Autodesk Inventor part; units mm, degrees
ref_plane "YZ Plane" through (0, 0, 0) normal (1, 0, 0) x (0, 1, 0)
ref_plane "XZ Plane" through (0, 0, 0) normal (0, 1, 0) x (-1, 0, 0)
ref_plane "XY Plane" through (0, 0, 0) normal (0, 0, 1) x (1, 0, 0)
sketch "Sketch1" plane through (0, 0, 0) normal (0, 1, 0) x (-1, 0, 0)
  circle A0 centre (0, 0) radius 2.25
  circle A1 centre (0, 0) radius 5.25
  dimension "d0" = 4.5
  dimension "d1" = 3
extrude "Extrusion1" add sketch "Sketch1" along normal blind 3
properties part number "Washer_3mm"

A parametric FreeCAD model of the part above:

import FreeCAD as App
import Part
import Sketcher

V = App.Vector
Q = App.Units.Quantity

doc = App.newDocument("Part")
body = doc.addObject("PartDesign::Body", "Body")

sketch1 = body.newObject("Sketcher::SketchObject", "Sketch")
sketch1.AttachmentSupport = (doc.getObject("XZ_Plane"), [""])
sketch1.MapMode = "FlatFace"
sketch1.addGeometry([
    Part.Circle(V(0, 0, 0), V(0, 0, 1), 5.2),
    Part.Circle(V(0, 0, 0), V(0, 0, 1), 2.2),
], False)
sketch1.addConstraint([
    Sketcher.Constraint("Coincident", 0, 3, -1, 1),
    Sketcher.Constraint("Coincident", 1, 3, -1, 1),
    Sketcher.Constraint("Diameter", 1, Q("4.5 mm")),
    Sketcher.Constraint("Diameter", 0, Q("10.5 mm")),
])
pad1 = body.newObject("PartDesign::Pad", "Pad")
pad1.Profile = sketch1
pad1.Length = 3
pad1.Reversed = True

doc.recompute()
